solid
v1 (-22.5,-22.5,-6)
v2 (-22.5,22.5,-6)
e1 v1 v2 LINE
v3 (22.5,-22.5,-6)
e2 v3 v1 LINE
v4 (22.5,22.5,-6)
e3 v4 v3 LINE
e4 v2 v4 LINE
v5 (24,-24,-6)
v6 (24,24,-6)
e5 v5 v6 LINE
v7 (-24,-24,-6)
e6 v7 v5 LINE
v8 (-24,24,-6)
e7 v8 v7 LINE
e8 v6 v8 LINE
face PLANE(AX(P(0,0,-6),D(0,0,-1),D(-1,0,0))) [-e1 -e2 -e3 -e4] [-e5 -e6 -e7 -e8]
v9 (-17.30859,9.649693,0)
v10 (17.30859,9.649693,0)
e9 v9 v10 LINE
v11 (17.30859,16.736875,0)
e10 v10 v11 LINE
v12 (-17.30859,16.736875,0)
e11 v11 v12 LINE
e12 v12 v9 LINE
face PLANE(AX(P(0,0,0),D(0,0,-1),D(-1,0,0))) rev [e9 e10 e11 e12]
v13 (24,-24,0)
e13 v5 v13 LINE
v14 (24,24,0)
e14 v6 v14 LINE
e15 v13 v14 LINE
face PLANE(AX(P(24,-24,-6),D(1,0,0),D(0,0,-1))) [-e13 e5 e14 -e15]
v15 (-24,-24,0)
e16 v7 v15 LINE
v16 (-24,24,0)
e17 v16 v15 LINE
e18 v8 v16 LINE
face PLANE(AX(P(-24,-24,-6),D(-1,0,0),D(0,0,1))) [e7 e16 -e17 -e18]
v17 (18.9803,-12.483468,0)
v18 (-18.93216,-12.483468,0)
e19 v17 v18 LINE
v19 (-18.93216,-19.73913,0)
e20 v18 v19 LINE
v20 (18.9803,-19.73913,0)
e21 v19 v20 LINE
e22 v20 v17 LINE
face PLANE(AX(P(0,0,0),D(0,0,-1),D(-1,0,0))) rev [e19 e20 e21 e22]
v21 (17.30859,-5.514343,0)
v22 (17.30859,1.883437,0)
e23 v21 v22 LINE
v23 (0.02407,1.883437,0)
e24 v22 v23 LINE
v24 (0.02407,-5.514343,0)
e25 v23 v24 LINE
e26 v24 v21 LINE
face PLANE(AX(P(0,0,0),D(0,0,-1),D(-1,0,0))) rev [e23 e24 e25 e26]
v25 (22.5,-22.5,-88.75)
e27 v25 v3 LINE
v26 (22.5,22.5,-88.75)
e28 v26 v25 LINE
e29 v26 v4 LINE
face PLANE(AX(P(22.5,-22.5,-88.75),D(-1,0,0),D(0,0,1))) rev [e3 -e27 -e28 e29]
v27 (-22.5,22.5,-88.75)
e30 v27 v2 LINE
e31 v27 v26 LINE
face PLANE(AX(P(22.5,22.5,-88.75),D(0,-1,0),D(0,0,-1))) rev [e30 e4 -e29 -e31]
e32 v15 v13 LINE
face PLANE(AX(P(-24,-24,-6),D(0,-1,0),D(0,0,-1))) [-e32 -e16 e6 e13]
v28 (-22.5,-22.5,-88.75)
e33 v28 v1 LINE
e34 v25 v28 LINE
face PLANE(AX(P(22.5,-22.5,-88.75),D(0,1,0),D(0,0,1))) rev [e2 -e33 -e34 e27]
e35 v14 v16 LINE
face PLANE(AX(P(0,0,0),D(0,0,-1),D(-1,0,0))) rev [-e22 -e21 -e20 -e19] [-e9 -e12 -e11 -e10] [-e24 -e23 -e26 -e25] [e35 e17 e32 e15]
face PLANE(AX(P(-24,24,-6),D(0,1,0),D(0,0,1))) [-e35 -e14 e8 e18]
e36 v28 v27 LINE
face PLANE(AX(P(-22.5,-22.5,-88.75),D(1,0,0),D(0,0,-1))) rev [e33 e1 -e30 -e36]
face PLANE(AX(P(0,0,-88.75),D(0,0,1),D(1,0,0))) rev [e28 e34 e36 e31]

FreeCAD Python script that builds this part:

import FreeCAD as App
import Part
import Sketcher
Q = App.Units.Quantity

doc = App.newDocument("Part")
body = doc.addObject("PartDesign::Body", "Body")

# Sketch on XY plane
sketch1 = body.newObject("Sketcher::SketchObject", "Sketch")
sketch1.AttachmentSupport = (doc.getObject("XY_Plane"), [""])
sketch1.MapMode = "FlatFace"
sketch1.addGeometry([
    Part.LineSegment(App.Vector(-24, 24, 0), App.Vector(-24, -24, 0)),
    Part.LineSegment(App.Vector(-24, -24, 0), App.Vector(24, -24, 0)),
    Part.LineSegment(App.Vector(24, -24, 0), App.Vector(24, 24, 0)),
    Part.LineSegment(App.Vector(24, 24, 0), App.Vector(-24, 24, 0)),
], False)
sketch1.addConstraint([
    Sketcher.Constraint("Coincident", 0, 2, 1, 1),
    Sketcher.Constraint("Coincident", 1, 2, 2, 1),
    Sketcher.Constraint("Coincident", 2, 2, 3, 1),
    Sketcher.Constraint("Coincident", 3, 2, 0, 1),
    Sketcher.Constraint("Vertical", 0),
    Sketcher.Constraint("Horizontal", 1),
    Sketcher.Constraint("Vertical", 2),
    Sketcher.Constraint("Horizontal", 3),
    Sketcher.Constraint("Symmetric", 0, 2, 2, 2, -1, 1),
    Sketcher.Constraint("Equal", 3, 0),
    Sketcher.Constraint("DistanceX", 1, 1, 1, 2, Q("48 mm")),
])
pad1 = body.newObject("PartDesign::Pad", "Pad")
pad1.Profile = sketch1
pad1.Length = 6
pad1.Reversed = True

# Sketch on XY plane
sketch2 = body.newObject("Sketcher::SketchObject", "Sketch001")
sketch2.AttachmentSupport = (doc.getObject("XY_Plane"), [""])
sketch2.MapMode = "FlatFace"
sketch2.AttachmentOffset = App.Placement(App.Vector(0, 0, -6), App.Rotation())
sketch2.addGeometry([
    Part.LineSegment(App.Vector(22, 22, 0), App.Vector(22, -22, 0)),
    Part.LineSegment(App.Vector(22, -22, 0), App.Vector(-22, -22, 0)),
    Part.LineSegment(App.Vector(-22, -22, 0), App.Vector(-22, 22, 0)),
    Part.LineSegment(App.Vector(-22, 22, 0), App.Vector(22, 22, 0)),
], False)
sketch2.addConstraint([
    Sketcher.Constraint("Coincident", 0, 2, 1, 1),
    Sketcher.Constraint("Coincident", 1, 2, 2, 1),
    Sketcher.Constraint("Coincident", 2, 2, 3, 1),
    Sketcher.Constraint("Coincident", 3, 2, 0, 1),
    Sketcher.Constraint("Vertical", 0),
    Sketcher.Constraint("Horizontal", 1),
    Sketcher.Constraint("Vertical", 2),
    Sketcher.Constraint("Horizontal", 3),
    Sketcher.Constraint("Symmetric", 0, 2, 2, 2, -1, 1),
    Sketcher.Constraint("Equal", 3, 0),
    Sketcher.Constraint("DistanceX", 1, 2, 1, 1, Q("45 mm")),
])
pad2 = body.newObject("PartDesign::Pad", "Pad001")
pad2.Profile = sketch2
pad2.Length = 82.75
pad2.Reversed = True

doc.recompute()
